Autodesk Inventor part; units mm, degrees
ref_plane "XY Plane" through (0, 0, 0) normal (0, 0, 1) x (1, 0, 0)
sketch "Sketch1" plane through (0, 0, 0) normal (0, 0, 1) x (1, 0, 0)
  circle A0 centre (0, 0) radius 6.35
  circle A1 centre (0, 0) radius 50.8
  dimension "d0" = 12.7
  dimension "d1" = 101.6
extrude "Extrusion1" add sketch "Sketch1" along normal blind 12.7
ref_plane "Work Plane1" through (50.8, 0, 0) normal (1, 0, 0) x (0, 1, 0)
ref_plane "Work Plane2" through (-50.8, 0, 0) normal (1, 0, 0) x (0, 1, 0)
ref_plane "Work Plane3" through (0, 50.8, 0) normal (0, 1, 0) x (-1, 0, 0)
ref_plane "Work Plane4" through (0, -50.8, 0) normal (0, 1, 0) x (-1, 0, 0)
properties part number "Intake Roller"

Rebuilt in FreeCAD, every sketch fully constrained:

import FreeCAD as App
import Part
import Sketcher
Q = App.Units.Quantity

doc = App.newDocument("Part")
params = doc.addObject("Spreadsheet::Sheet", "Params")
for row, (alias, value) in enumerate([
    ("sketch1_diameter", "4 in"),
    ("sketch1_diameter2", "0.5 in"),
    ("pad1_length", "0.5 in"),
], start=1):
    params.set(f"A{row}", alias)
    params.set(f"B{row}", "=" + value)
    params.setAlias(f"B{row}", alias)

body = doc.addObject("PartDesign::Body", "Body")

# Sketch on XY plane
sketch1 = doc.addObject("Sketcher::SketchObject", "Sketch")
body.addObject(sketch1)
sketch1.AttachmentSupport = (doc.XY_Plane, [""])
sketch1.MapMode = "FlatFace"
sketch1.addGeometry(Part.Circle(App.Vector(0, 0, 0), App.Vector(0, 0, 1), 50.8), False)
sketch1.addGeometry(Part.Circle(App.Vector(0, 0, 0), App.Vector(0, 0, 1), 6.35), False)
sketch1.addConstraint(Sketcher.Constraint("Coincident", 0, 3, -1, 1))
sketch1.addConstraint(Sketcher.Constraint("Coincident", 1, 3, -1, 1))
sketch1.addConstraint(Sketcher.Constraint("Diameter", 0, Q("4 in")))
sketch1.addConstraint(Sketcher.Constraint("Diameter", 1, Q("0.5 in")))
sketch1.setExpression("Constraints[2]", "Params.sketch1_diameter")
sketch1.setExpression("Constraints[3]", "Params.sketch1_diameter2")
pad1 = doc.addObject("PartDesign::Pad", "Pad")
body.addObject(pad1)
pad1.Profile = sketch1
pad1.setExpression("Length", "Params.pad1_length")

doc.recompute()
